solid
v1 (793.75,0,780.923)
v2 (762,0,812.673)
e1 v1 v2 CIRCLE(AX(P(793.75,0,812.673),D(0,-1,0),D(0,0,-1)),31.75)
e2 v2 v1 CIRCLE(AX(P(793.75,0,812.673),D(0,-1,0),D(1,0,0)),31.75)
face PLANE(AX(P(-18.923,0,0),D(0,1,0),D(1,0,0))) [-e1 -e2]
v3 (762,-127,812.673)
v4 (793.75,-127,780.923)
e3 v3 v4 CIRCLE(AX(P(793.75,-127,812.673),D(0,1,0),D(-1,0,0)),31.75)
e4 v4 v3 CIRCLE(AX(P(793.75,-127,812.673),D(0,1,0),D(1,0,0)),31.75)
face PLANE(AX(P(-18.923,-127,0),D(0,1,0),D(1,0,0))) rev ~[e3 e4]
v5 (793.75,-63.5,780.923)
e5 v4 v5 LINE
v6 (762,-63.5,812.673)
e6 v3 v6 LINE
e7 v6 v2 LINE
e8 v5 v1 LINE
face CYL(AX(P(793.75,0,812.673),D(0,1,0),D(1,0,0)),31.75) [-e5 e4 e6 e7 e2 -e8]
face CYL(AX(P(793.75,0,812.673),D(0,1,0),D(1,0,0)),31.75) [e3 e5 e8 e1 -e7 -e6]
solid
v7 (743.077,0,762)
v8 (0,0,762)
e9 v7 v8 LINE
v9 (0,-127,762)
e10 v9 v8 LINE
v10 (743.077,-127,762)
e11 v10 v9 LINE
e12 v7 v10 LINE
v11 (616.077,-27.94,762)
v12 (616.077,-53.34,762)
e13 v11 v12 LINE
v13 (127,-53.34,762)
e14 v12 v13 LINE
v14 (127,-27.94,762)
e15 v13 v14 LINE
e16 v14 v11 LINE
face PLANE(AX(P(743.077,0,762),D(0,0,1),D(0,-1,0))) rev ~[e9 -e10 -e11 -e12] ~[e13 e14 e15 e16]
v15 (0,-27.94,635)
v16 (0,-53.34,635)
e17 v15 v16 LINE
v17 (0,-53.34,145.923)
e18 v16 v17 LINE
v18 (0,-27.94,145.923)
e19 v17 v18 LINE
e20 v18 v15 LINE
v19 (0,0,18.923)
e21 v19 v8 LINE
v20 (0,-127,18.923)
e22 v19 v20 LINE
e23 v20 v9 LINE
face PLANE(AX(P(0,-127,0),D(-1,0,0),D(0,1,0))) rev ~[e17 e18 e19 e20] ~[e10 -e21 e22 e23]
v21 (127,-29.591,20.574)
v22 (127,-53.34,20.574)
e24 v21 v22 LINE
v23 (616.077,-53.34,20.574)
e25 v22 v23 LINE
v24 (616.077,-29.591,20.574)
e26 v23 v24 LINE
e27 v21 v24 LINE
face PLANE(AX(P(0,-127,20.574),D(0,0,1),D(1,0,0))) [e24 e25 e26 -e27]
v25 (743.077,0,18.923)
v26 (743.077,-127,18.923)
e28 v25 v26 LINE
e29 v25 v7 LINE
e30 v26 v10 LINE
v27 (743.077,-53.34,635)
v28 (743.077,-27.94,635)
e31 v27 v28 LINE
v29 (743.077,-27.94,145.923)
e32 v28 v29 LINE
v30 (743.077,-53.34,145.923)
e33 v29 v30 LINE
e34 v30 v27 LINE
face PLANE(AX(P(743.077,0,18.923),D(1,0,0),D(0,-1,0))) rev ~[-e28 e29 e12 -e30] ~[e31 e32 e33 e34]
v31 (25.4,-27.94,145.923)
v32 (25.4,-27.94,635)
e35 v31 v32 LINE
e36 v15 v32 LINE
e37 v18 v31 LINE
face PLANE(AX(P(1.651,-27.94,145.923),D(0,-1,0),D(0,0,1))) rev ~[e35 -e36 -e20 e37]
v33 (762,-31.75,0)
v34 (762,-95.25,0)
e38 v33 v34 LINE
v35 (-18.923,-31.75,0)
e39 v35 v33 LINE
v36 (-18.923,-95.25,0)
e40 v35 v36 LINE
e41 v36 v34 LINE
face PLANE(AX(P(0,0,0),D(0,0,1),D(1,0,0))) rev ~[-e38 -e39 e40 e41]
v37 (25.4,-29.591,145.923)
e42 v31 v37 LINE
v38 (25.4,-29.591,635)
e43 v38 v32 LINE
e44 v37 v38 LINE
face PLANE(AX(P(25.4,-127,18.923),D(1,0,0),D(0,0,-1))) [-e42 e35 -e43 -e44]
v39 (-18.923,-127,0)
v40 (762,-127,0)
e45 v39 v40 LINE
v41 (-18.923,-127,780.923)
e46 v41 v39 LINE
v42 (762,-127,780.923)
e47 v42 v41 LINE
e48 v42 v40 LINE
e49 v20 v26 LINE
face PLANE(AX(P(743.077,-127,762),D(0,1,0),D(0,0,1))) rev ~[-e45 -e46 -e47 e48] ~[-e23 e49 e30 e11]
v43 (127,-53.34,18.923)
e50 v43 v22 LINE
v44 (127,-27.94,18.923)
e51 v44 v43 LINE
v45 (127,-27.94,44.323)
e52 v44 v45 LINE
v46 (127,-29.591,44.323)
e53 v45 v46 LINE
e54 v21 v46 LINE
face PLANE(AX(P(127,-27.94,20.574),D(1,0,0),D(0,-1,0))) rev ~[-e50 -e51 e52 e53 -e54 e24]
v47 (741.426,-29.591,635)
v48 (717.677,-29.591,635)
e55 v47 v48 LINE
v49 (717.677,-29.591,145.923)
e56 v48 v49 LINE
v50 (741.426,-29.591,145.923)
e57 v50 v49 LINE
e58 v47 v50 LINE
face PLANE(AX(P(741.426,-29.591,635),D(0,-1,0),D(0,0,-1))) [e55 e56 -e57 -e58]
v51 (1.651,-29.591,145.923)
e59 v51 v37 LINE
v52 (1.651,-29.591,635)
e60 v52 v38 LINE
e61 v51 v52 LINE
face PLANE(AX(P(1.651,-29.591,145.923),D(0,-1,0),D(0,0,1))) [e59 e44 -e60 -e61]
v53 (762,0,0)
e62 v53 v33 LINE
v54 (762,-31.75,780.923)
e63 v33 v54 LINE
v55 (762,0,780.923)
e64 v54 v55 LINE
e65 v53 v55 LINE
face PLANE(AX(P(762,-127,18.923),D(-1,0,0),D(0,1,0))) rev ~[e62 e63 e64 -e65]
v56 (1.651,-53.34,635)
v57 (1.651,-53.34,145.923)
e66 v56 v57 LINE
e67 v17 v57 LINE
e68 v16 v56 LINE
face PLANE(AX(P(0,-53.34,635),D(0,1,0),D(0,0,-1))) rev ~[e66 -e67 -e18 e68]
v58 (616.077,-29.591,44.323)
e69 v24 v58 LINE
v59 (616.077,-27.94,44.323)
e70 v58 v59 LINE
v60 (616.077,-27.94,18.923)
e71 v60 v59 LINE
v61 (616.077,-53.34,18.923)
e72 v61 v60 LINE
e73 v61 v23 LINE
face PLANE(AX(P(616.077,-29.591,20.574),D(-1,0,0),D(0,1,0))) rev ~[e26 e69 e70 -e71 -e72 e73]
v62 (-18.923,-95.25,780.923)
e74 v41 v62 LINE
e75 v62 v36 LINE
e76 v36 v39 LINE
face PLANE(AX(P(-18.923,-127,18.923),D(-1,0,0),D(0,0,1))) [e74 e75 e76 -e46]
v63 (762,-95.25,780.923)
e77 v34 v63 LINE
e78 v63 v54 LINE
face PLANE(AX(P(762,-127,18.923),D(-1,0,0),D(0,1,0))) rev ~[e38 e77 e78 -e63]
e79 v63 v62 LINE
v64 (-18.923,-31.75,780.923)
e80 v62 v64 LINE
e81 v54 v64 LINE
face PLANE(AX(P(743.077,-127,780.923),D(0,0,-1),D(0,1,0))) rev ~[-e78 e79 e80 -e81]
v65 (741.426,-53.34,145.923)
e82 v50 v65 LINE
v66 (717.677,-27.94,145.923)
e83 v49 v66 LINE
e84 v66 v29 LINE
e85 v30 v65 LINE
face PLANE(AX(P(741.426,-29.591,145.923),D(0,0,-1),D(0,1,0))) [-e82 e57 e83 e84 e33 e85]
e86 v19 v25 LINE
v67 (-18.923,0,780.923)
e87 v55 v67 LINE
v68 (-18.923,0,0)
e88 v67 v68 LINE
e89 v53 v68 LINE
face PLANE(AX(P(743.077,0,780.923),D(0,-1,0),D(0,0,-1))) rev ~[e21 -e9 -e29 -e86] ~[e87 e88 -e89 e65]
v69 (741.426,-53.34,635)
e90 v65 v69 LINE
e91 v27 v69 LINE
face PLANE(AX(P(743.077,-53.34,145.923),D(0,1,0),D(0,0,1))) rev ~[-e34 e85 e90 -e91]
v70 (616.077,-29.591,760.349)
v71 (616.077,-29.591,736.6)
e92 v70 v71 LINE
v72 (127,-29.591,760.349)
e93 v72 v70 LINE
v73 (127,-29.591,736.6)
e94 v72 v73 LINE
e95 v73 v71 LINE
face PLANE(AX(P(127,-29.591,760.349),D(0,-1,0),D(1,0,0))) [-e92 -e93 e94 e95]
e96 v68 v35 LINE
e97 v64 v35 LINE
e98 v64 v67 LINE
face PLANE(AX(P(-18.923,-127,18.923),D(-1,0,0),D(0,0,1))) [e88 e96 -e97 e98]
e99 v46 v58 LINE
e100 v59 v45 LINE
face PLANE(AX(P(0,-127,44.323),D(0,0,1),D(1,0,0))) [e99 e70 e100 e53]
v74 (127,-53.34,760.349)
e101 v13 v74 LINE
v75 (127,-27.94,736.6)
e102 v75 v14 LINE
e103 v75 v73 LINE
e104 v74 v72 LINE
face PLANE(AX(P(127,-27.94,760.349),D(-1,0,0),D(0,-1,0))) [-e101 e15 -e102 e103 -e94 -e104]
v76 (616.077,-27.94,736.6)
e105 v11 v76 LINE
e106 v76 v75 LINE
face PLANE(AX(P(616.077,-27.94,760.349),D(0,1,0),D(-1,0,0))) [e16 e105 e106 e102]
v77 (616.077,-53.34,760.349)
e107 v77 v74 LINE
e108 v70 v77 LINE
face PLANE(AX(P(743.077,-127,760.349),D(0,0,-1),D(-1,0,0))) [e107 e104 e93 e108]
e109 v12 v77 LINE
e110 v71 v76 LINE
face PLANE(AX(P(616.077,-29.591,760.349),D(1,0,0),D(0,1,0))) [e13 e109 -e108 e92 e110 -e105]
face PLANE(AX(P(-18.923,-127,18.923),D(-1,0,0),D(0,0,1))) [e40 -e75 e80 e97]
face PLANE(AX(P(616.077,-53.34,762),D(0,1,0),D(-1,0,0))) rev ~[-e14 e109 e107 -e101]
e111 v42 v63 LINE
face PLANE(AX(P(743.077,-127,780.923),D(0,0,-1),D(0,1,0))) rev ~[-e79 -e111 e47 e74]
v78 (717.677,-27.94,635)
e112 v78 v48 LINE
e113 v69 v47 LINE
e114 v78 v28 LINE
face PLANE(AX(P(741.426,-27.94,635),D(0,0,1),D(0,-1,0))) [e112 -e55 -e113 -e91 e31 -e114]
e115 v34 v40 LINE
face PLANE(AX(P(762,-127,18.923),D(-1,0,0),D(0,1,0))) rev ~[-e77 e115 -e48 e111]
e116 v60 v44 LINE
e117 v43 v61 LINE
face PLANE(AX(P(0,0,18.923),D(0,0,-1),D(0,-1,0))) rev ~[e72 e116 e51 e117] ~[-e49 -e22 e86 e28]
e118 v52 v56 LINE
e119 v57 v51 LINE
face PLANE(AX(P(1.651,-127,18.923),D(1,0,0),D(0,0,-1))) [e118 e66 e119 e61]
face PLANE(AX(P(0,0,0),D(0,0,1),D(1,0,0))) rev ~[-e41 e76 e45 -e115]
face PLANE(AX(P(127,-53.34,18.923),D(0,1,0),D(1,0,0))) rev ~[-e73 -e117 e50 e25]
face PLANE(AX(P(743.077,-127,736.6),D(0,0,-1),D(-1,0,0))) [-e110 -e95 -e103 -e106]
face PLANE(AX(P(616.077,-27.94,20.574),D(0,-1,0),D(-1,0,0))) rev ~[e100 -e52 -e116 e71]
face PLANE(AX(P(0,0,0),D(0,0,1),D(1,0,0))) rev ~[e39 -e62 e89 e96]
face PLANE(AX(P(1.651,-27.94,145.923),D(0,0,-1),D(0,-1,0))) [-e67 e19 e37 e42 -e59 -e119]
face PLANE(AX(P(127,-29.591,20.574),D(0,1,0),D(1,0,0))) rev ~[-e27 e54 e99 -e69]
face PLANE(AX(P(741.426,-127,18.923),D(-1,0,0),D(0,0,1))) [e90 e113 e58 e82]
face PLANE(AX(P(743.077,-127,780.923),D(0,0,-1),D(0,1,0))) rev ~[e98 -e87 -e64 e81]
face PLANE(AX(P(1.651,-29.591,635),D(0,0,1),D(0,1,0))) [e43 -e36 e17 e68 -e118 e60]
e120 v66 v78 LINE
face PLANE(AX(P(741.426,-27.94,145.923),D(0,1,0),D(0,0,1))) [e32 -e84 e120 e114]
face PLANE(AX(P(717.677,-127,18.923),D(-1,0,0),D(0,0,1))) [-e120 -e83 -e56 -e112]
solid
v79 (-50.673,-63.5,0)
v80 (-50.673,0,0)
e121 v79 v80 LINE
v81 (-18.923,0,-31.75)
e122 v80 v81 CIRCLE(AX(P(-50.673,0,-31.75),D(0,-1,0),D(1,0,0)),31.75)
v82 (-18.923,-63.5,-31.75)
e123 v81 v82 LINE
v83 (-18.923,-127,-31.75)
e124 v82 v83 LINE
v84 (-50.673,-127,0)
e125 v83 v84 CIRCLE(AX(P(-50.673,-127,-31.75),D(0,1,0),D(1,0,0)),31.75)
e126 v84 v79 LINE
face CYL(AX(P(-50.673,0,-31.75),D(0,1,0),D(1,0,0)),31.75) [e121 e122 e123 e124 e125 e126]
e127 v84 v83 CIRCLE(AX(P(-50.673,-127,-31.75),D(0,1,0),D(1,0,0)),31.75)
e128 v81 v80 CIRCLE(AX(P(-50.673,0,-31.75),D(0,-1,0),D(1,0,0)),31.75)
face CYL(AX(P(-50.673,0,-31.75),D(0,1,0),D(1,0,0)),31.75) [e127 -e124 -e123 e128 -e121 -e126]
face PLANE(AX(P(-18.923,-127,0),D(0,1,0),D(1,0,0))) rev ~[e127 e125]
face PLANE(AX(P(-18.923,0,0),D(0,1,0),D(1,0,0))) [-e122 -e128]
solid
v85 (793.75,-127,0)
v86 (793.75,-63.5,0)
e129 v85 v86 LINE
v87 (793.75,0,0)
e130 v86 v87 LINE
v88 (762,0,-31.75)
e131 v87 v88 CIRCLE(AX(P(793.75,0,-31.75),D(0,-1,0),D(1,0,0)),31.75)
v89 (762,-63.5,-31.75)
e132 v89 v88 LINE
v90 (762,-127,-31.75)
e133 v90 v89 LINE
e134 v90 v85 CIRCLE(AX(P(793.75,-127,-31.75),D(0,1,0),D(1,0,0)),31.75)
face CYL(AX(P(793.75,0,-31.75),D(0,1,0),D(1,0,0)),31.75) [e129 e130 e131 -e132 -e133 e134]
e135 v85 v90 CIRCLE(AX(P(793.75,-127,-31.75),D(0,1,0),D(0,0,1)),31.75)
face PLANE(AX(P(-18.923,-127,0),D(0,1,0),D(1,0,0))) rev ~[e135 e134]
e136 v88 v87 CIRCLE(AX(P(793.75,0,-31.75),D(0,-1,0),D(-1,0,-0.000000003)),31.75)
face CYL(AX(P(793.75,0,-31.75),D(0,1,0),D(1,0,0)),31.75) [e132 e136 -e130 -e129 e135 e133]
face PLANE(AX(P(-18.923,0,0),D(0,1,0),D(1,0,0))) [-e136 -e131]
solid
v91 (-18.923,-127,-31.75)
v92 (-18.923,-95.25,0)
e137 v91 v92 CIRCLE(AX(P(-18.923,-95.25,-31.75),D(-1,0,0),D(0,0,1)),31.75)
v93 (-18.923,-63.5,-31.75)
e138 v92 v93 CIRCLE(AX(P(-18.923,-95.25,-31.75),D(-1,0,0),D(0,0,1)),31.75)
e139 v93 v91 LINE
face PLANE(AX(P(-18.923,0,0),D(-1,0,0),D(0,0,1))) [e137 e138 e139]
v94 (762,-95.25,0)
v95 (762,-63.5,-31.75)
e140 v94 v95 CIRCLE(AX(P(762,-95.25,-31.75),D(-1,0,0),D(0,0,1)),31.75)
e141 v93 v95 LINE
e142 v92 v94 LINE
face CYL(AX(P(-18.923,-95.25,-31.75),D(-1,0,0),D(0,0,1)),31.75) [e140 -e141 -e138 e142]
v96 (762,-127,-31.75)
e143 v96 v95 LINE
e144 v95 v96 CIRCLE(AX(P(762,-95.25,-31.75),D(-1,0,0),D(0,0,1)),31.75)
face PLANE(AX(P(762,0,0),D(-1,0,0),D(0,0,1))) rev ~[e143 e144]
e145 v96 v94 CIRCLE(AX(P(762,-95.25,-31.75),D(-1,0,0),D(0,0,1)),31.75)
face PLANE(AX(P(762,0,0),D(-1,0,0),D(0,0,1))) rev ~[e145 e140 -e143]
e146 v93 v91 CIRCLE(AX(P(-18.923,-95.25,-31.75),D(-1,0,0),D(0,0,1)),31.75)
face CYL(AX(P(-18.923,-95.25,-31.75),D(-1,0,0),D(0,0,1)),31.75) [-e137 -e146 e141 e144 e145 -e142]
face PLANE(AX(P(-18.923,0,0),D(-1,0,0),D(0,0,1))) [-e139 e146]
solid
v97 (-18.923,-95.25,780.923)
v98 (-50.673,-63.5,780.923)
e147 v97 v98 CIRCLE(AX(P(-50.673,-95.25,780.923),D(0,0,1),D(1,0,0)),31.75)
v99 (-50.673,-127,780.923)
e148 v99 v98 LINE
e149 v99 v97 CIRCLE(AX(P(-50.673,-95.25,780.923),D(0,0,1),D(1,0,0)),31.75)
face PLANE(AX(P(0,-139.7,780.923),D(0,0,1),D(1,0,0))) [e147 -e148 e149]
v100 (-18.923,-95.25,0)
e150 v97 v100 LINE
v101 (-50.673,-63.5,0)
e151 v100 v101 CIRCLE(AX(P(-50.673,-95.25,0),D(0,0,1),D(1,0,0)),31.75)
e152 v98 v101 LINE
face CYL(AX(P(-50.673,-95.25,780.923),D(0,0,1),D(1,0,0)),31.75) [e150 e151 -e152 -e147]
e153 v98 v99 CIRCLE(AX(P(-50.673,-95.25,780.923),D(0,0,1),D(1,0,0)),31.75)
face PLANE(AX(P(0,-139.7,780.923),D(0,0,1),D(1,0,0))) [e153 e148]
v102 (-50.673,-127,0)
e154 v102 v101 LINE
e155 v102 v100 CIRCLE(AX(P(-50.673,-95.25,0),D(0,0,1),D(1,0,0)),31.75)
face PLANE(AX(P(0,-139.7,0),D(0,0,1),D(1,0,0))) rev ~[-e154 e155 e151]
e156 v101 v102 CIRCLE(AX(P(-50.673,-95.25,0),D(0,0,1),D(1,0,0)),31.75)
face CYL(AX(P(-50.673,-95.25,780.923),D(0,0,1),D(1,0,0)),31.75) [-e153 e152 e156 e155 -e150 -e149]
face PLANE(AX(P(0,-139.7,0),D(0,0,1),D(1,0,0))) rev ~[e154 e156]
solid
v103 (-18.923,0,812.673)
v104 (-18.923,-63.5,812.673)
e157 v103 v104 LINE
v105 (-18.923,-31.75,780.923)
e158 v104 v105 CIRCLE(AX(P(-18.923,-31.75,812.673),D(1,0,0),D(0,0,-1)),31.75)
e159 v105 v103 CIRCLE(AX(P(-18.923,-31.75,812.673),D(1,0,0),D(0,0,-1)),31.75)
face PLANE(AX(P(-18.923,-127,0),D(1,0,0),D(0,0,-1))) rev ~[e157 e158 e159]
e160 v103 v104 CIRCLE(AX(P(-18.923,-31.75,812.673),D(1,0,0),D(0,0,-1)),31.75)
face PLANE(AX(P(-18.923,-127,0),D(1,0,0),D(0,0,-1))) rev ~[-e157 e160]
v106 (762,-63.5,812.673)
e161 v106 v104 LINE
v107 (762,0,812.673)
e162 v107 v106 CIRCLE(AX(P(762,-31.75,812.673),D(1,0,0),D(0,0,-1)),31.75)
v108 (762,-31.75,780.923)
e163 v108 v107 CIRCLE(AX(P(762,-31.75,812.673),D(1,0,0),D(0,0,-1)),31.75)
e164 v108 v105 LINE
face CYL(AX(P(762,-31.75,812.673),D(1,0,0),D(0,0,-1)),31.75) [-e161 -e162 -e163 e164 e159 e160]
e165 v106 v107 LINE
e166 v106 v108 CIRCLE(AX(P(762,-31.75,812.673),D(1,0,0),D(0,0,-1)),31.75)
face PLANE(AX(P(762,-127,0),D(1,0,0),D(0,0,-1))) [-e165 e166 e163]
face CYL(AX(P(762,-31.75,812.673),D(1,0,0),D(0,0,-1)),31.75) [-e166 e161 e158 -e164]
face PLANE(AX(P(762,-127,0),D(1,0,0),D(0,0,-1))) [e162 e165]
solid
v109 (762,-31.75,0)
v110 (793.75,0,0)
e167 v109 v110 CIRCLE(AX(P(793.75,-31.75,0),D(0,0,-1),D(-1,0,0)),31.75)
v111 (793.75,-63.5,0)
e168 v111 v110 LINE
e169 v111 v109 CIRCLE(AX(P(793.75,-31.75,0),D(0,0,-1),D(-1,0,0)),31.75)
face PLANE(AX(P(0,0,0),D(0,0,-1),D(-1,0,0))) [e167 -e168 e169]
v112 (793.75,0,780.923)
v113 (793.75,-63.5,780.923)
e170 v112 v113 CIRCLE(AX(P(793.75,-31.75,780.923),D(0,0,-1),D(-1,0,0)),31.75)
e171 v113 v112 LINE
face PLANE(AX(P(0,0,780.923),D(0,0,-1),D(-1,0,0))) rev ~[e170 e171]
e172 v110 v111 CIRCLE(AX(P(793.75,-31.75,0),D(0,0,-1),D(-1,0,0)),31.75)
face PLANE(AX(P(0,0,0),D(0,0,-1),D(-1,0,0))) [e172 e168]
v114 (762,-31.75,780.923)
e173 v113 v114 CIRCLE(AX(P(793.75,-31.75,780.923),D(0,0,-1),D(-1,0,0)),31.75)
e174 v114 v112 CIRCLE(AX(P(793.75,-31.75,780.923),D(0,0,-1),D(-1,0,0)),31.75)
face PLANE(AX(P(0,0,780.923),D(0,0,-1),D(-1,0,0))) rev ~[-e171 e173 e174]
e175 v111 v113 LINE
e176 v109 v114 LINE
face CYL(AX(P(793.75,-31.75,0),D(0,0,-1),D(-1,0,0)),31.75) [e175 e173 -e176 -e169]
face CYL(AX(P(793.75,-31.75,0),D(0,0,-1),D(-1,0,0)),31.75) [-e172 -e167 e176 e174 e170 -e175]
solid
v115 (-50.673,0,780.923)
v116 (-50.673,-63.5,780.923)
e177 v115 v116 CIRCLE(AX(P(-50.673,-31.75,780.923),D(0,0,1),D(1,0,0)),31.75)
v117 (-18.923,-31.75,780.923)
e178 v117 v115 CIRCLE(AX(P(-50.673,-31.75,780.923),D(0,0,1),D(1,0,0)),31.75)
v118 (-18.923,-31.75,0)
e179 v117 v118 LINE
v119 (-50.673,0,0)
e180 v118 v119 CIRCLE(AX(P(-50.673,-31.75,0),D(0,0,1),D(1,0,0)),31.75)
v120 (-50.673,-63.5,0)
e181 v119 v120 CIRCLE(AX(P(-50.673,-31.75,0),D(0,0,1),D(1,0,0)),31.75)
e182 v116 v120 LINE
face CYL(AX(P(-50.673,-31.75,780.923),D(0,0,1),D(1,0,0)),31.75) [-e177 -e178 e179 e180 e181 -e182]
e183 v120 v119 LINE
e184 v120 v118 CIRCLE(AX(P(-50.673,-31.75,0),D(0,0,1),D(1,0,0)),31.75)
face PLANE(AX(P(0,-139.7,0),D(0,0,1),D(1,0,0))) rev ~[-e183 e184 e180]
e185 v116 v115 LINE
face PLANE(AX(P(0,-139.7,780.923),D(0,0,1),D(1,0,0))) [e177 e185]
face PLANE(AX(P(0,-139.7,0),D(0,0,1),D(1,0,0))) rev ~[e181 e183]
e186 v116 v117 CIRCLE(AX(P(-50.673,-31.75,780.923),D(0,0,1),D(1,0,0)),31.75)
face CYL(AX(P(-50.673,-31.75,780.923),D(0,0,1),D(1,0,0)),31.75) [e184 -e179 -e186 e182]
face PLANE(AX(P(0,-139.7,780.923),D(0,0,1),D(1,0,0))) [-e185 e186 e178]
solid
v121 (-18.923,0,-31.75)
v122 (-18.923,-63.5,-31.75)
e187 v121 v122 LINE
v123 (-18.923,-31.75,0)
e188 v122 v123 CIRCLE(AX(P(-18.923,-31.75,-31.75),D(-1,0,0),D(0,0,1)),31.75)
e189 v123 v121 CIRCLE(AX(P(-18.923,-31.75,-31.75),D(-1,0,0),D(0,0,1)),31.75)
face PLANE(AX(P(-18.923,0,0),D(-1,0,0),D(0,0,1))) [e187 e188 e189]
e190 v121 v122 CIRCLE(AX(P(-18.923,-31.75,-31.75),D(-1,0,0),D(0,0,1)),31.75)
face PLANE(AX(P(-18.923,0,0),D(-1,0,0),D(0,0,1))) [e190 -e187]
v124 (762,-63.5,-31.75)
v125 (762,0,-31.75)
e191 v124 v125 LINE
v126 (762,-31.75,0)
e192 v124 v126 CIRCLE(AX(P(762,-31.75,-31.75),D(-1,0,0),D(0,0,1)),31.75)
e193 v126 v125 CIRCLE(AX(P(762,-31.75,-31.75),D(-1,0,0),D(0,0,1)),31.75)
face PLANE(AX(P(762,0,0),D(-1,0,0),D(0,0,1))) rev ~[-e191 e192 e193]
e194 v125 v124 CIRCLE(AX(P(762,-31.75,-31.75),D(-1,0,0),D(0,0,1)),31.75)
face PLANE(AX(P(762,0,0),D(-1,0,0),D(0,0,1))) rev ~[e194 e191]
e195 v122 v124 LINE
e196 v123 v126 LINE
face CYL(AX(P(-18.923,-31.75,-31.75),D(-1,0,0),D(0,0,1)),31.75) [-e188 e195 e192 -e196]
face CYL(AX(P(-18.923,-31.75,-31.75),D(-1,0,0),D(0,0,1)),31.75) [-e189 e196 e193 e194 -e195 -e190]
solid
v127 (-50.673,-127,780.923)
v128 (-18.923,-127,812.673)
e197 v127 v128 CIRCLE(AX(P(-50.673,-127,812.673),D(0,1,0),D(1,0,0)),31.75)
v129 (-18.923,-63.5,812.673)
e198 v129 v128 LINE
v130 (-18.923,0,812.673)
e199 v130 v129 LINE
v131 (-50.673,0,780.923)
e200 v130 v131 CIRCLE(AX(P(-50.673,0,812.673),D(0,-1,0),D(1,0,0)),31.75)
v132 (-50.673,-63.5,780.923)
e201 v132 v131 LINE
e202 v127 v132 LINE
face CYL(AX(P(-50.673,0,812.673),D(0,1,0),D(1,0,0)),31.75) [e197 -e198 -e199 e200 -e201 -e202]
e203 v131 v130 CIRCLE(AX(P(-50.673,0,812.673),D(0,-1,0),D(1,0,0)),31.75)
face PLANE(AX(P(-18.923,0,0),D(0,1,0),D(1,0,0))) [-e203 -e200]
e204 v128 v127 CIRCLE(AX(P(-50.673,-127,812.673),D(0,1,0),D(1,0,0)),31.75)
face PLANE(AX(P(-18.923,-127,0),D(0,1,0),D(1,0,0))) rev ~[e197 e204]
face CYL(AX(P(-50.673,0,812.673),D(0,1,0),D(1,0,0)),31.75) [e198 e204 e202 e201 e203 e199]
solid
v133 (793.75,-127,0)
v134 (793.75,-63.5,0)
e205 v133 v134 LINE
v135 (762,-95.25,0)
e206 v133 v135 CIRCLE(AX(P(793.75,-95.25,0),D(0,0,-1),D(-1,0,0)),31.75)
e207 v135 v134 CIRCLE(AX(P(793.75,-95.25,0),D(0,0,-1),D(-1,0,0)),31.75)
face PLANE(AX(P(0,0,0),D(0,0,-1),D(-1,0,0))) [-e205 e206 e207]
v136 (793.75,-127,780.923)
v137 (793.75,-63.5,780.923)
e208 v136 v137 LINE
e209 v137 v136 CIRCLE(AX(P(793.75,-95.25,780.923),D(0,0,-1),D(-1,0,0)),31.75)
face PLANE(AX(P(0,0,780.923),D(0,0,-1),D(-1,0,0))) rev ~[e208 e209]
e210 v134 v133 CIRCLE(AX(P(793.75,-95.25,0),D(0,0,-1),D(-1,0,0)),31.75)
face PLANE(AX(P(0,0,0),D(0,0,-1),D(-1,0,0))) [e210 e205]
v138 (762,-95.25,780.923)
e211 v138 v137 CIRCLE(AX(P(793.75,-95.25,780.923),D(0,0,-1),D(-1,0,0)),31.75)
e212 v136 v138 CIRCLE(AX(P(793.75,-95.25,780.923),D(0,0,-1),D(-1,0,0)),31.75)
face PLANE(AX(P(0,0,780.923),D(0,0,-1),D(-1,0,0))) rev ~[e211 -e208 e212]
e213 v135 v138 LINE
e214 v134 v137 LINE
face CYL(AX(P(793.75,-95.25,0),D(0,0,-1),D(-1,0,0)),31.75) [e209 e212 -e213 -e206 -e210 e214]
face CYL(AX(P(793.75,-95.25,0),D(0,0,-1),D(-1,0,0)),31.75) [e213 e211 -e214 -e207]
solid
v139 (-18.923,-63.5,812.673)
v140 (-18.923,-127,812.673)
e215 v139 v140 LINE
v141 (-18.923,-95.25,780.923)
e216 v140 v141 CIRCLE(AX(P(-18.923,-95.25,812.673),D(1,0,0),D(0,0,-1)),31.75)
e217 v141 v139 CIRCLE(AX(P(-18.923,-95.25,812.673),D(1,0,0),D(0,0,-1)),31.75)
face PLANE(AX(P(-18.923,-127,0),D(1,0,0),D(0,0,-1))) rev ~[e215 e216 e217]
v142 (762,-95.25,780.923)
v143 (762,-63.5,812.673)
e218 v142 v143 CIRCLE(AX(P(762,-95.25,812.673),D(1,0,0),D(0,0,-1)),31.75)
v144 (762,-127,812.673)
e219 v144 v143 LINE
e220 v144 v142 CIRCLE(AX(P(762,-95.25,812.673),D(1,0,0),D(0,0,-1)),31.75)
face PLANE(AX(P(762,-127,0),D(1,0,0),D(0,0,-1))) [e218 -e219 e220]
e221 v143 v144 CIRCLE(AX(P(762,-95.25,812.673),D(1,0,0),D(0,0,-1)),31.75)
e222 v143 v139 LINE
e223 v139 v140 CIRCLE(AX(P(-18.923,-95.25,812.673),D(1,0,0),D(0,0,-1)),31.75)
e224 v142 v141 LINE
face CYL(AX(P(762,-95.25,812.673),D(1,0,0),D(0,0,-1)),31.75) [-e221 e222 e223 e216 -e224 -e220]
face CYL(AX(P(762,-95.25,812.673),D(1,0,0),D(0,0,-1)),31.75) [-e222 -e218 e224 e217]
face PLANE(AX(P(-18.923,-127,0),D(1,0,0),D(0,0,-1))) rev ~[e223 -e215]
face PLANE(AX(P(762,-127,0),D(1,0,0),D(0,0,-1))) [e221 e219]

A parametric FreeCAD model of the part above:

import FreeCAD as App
import Part
import Sketcher
from FreeCAD import Vector
Q = App.Units.Quantity

doc = App.newDocument("Part")
body = doc.addObject("PartDesign::Body", "Body")
body.AllowCompound = True

sketch1 = body.newObject("Sketcher::SketchObject", "Sketch")
sketch1.AttachmentSupport = (doc.getObject("XY_Plane"), [""])
sketch1.MapMode = "FlatFace"
sketch1.addGeometry(Part.LineSegment(Vector(0, -127, 0), Vector(0, 0, 0)), False)
sketch1.addGeometry(Part.LineSegment(Vector(0, 0, 0), Vector(-18.923, 0, 0)), False)
sketch1.addGeometry(Part.LineSegment(Vector(-18.923, 0, 0), Vector(-18.923, -127, 0)), False)
sketch1.addGeometry(Part.LineSegment(Vector(-18.923, -127, 0), Vector(0, -127, 0)), False)
sketch1.addConstraint(Sketcher.Constraint("Coincident", 0, 2, 1, 1))
sketch1.addConstraint(Sketcher.Constraint("Coincident", 1, 2, 2, 1))
sketch1.addConstraint(Sketcher.Constraint("Coincident", 2, 2, 3, 1))
sketch1.addConstraint(Sketcher.Constraint("Coincident", 3, 2, 0, 1))
sketch1.addConstraint(Sketcher.Constraint("Vertical", 0))
sketch1.addConstraint(Sketcher.Constraint("Horizontal", 1))
sketch1.addConstraint(Sketcher.Constraint("Vertical", 2))
sketch1.addConstraint(Sketcher.Constraint("Horizontal", 3))
sketch1.addConstraint(Sketcher.Constraint("Coincident", 0, 2, -1, 1))
sketch1.addConstraint(Sketcher.Constraint("DistanceY", 0, 1, 0, 2, Q("5 in")))
sketch1.addConstraint(Sketcher.Constraint("DistanceX", 1, 2, 1, 1, Q("0.745 in")))
pad1 = body.newObject("PartDesign::Pad", "Pad")
pad1.Profile = sketch1
pad1.Length = Q("30 in")

sketch2 = body.newObject("Sketcher::SketchObject", "Sketch001")
sketch2.AttachmentSupport = (doc.getObject("YZ_Plane"), [""])
sketch2.MapMode = "FlatFace"
sketch2.addGeometry(Part.LineSegment(Vector(-127, 0, 0), Vector(0, 0, 0)), False)
sketch2.addGeometry(Part.LineSegment(Vector(0, 0, 0), Vector(0, 18.923, 0)), False)
sketch2.addGeometry(Part.LineSegment(Vector(0, 18.923, 0), Vector(-127, 18.923, 0)), False)
sketch2.addGeometry(Part.LineSegment(Vector(-127, 18.923, 0), Vector(-127, 0, 0)), False)
sketch2.addConstraint(Sketcher.Constraint("Coincident", 0, 2, 1, 1))
sketch2.addConstraint(Sketcher.Constraint("Coincident", 1, 2, 2, 1))
sketch2.addConstraint(Sketcher.Constraint("Coincident", 2, 2, 3, 1))
sketch2.addConstraint(Sketcher.Constraint("Coincident", 3, 2, 0, 1))
sketch2.addConstraint(Sketcher.Constraint("Horizontal", 0))
sketch2.addConstraint(Sketcher.Constraint("Vertical", 1))
sketch2.addConstraint(Sketcher.Constraint("Horizontal", 2))
sketch2.addConstraint(Sketcher.Constraint("Vertical", 3))
sketch2.addConstraint(Sketcher.Constraint("Coincident", 0, 2, -1, 1))
sketch2.addConstraint(Sketcher.Constraint("DistanceX", 0, 1, 0, 2, Q("5 in")))
sketch2.addConstraint(Sketcher.Constraint("DistanceY", 1, 1, 1, 2, Q("0.745 in")))
pad2 = body.newObject("PartDesign::Pad", "Pad001")
pad2.Profile = sketch2
pad2.Length = Q("30 in")

sketch3 = body.newObject("Sketcher::SketchObject", "Sketch002")
sketch3.AttachmentSupport = (doc.getObject("XY_Plane"), [""])
sketch3.MapMode = "FlatFace"
sketch3.AttachmentOffset = App.Placement(Vector(0, 0, 0.745 * 25.4), App.Rotation())
sketch3.addGeometry(Part.LineSegment(Vector(762, -127, 0), Vector(762, 0, 0)), False)
sketch3.addGeometry(Part.LineSegment(Vector(762, 0, 0), Vector(743.077, 0, 0)), False)
sketch3.addGeometry(Part.LineSegment(Vector(743.077, 0, 0), Vector(743.077, -127, 0)), False)
sketch3.addGeometry(Part.LineSegment(Vector(743.077, -127, 0), Vector(762, -127, 0)), False)
sketch3.addConstraint(Sketcher.Constraint("Coincident", 0, 2, 1, 1))
sketch3.addConstraint(Sketcher.Constraint("Coincident", 1, 2, 2, 1))
sketch3.addConstraint(Sketcher.Constraint("Coincident", 2, 2, 3, 1))
sketch3.addConstraint(Sketcher.Constraint("Coincident", 3, 2, 0, 1))
sketch3.addConstraint(Sketcher.Constraint("Vertical", 0))
sketch3.addConstraint(Sketcher.Constraint("Horizontal", 1))
sketch3.addConstraint(Sketcher.Constraint("Vertical", 2))
sketch3.addConstraint(Sketcher.Constraint("Horizontal", 3))
sketch3.addConstraint(Sketcher.Constraint("PointOnObject", 0, 2, -1))
sketch3.addConstraint(Sketcher.Constraint("DistanceX", 1, 2, 1, 1, Q("0.745 in")))
sketch3.addConstraint(Sketcher.Constraint("DistanceY", 0, 1, 0, 2, Q("5 in")))
sketch3.addConstraint(Sketcher.Constraint("DistanceX", -1, 1, 0, 2, Q("30 in")))
pad3 = body.newObject("PartDesign::Pad", "Pad002")
pad3.Profile = sketch3
pad3.Length = Q("30 in")

sketch4 = body.newObject("Sketcher::SketchObject", "Sketch003")
sketch4.AttachmentSupport = (doc.getObject("YZ_Plane"), [""])
sketch4.MapMode = "FlatFace"
sketch4.AttachmentOffset = App.Placement(Vector(0, 0, 29.255 * 25.4), App.Rotation())
sketch4.addGeometry(Part.LineSegment(Vector(-127, 762, 0), Vector(-127, 780.923, 0)), False)
sketch4.addGeometry(Part.LineSegment(Vector(-127, 780.923, 0), Vector(0, 780.923, 0)), False)
sketch4.addGeometry(Part.LineSegment(Vector(0, 780.923, 0), Vector(0, 762, 0)), False)
sketch4.addGeometry(Part.LineSegment(Vector(0, 762, 0), Vector(-127, 762, 0)), False)
sketch4.addConstraint(Sketcher.Constraint("Coincident", 0, 2, 1, 1))
sketch4.addConstraint(Sketcher.Constraint("Coincident", 1, 2, 2, 1))
sketch4.addConstraint(Sketcher.Constraint("Coincident", 2, 2, 3, 1))
sketch4.addConstraint(Sketcher.Constraint("Coincident", 3, 2, 0, 1))
sketch4.addConstraint(Sketcher.Constraint("Vertical", 0))
sketch4.addConstraint(Sketcher.Constraint("Horizontal", 1))
sketch4.addConstraint(Sketcher.Constraint("Vertical", 2))
sketch4.addConstraint(Sketcher.Constraint("Horizontal", 3))
sketch4.addConstraint(Sketcher.Constraint("PointOnObject", 1, 2, -2))
sketch4.addConstraint(Sketcher.Constraint("DistanceX", 1, 1, 1, 2, Q("5 in")))
sketch4.addConstraint(Sketcher.Constraint("DistanceY", 0, 1, 0, 2, Q("0.745 in")))
sketch4.addConstraint(Sketcher.Constraint("DistanceY", -1, 1, 2, 2, Q("30 in")))
pad4 = body.newObject("PartDesign::Pad", "Pad003")
pad4.Profile = sketch4
pad4.Length = Q("30 in")
pad4.Reversed = True

sketch5 = body.newObject("Sketcher::SketchObject", "Sketch004")
sketch5.AttachmentSupport = (doc.getObject("XY_Plane"), [""])
sketch5.MapMode = "FlatFace"
sketch5.AttachmentOffset = App.Placement(Vector(0, 0, 30.745 * 25.4), App.Rotation())
sketch5.addGeometry(Part.Circle(Vector(-50.673, -31.75, 0), Vector(0, 0, 1), 31.75), False)
sketch5.addGeometry(Part.Circle(Vector(-50.673, -95.25, 0), Vector(0, 0, 1), 31.75), False)
sketch5.addConstraint(Sketcher.Constraint("Equal", 0, 1))
sketch5.addConstraint(Sketcher.Constraint("Vertical", 0, 3, 1, 3))
sketch5.addConstraint(Sketcher.Constraint("Diameter", 0, Q("2.5 in")))
sketch5.addConstraint(Sketcher.Constraint("DistanceY", 1, 3, 0, 3, Q("2.5 in")))
sketch5.addConstraint(Sketcher.Constraint("DistanceY", 0, 3, -1, 1, Q("1.25 in")))
sketch5.addConstraint(Sketcher.Constraint("DistanceX", 0, 3, -1, 1, Q("1.995 in")))
pad5 = body.newObject("PartDesign::Pad", "Pad004")
pad5.Profile = sketch5
pad5.Length = Q("30.745 in")
pad5.Reversed = True

sketch6 = body.newObject("Sketcher::SketchObject", "Sketch005")
sketch6.AttachmentSupport = (doc.getObject("YZ_Plane"), [""])
sketch6.MapMode = "FlatFace"
sketch6.AttachmentOffset = App.Placement(Vector(0, 0, -0.745 * 25.4), App.Rotation())
sketch6.addGeometry(Part.Circle(Vector(-31.75, -31.75, 0), Vector(0, 0, 1), 31.75), False)
sketch6.addGeometry(Part.Circle(Vector(-95.25, -31.75, 0), Vector(0, 0, 1), 31.75), False)
sketch6.addConstraint(Sketcher.Constraint("Equal", 0, 1))
sketch6.addConstraint(Sketcher.Constraint("Horizontal", 0, 3, 1, 3))
sketch6.addConstraint(Sketcher.Constraint("Diameter", 0, Q("2.5 in")))
sketch6.addConstraint(Sketcher.Constraint("DistanceX", 1, 3, 0, 3, Q("2.5 in")))
sketch6.addConstraint(Sketcher.Constraint("DistanceX", 0, 3, -1, 1, Q("1.25 in")))
sketch6.addConstraint(Sketcher.Constraint("DistanceY", 0, 3, -1, 1, Q("1.25 in")))
pad6 = body.newObject("PartDesign::Pad", "Pad005")
pad6.Profile = sketch6
pad6.Length = Q("30.745 in")

sketch7 = body.newObject("Sketcher::SketchObject", "Sketch006")
sketch7.AttachmentSupport = (doc.getObject("XY_Plane"), [""])
sketch7.MapMode = "FlatFace"
sketch7.addGeometry(Part.Circle(Vector(793.75, -31.75, 0), Vector(0, 0, 1), 31.75), False)
sketch7.addGeometry(Part.Circle(Vector(793.75, -95.25, 0), Vector(0, 0, 1), 31.75), False)
sketch7.addConstraint(Sketcher.Constraint("Equal", 0, 1))
sketch7.addConstraint(Sketcher.Constraint("Vertical", 0, 3, 1, 3))
sketch7.addConstraint(Sketcher.Constraint("Diameter", 0, Q("2.5 in")))
sketch7.addConstraint(Sketcher.Constraint("DistanceY", 1, 3, 0, 3, Q("2.5 in")))
sketch7.addConstraint(Sketcher.Constraint("DistanceY", 0, 3, -1, 1, Q("1.25 in")))
sketch7.addConstraint(Sketcher.Constraint("DistanceX", -1, 1, 0, 3, Q("31.25 in")))
pad7 = body.newObject("PartDesign::Pad", "Pad006")
pad7.Profile = sketch7
pad7.Length = Q("30.745 in")

sketch8 = body.newObject("Sketcher::SketchObject", "Sketch007")
sketch8.AttachmentSupport = (doc.getObject("YZ_Plane"), [""])
sketch8.MapMode = "FlatFace"
sketch8.AttachmentOffset = App.Placement(Vector(0, 0, 30 * 25.4), App.Rotation())
sketch8.addGeometry(Part.Circle(Vector(-31.75, 812.673, 0), Vector(0, 0, 1), 31.75), False)
sketch8.addGeometry(Part.Circle(Vector(-95.25, 812.673, 0), Vector(0, 0, 1), 31.75), False)
sketch8.addConstraint(Sketcher.Constraint("Equal", 0, 1))
sketch8.addConstraint(Sketcher.Constraint("Horizontal", 0, 3, 1, 3))
sketch8.addConstraint(Sketcher.Constraint("Diameter", 0, Q("2.5 in")))
sketch8.addConstraint(Sketcher.Constraint("DistanceX", 1, 3, 0, 3, Q("2.5 in")))
sketch8.addConstraint(Sketcher.Constraint("DistanceX", 0, 3, -1, 1, Q("1.25 in")))
sketch8.addConstraint(Sketcher.Constraint("DistanceY", -1, 1, 0, 3, Q("31.995 in")))
pad8 = body.newObject("PartDesign::Pad", "Pad007")
pad8.Profile = sketch8
pad8.Length = Q("30.745 in")
pad8.Reversed = True

sketch9 = body.newObject("Sketcher::SketchObject", "Sketch008")
sketch9.AttachmentSupport = (doc.getObject("XZ_Plane"), [""])
sketch9.MapMode = "FlatFace"
sketch9.addGeometry(Part.Circle(Vector(793.75, -31.75, 0), Vector(0, 0, 1), 31.75), False)
sketch9.addGeometry(Part.Circle(Vector(-50.673, -31.75, 0), Vector(0, 0, 1), 31.75), False)
sketch9.addGeometry(Part.Circle(Vector(-50.673, 812.673, 0), Vector(0, 0, 1), 31.75), False)
sketch9.addGeometry(Part.Circle(Vector(793.75, 812.673, 0), Vector(0, 0, 1), 31.75), False)
sketch9.addConstraint(Sketcher.Constraint("Equal", 0, 1))
sketch9.addConstraint(Sketcher.Constraint("Equal", 1, 2))
sketch9.addConstraint(Sketcher.Constraint("Equal", 2, 3))
sketch9.addConstraint(Sketcher.Constraint("Horizontal", 0, 3, 1, 3))
sketch9.addConstraint(Sketcher.Constraint("Horizontal", 2, 3, 3, 3))
sketch9.addConstraint(Sketcher.Constraint("Vertical", 1, 3, 2, 3))
sketch9.addConstraint(Sketcher.Constraint("Vertical", 0, 3, 3, 3))
sketch9.addConstraint(Sketcher.Constraint("Diameter", 0, Q("2.5 in")))
sketch9.addConstraint(Sketcher.Constraint("DistanceY", 0, 3, -1, 1, Q("1.25 in")))
sketch9.addConstraint(Sketcher.Constraint("DistanceX", -1, 1, 0, 3, Q("31.25 in")))
sketch9.addConstraint(Sketcher.Constraint("DistanceX", 1, 3, -1, 1, Q("1.995 in")))
sketch9.addConstraint(Sketcher.Constraint("DistanceY", -1, 1, 2, 3, Q("31.995 in")))
pad9 = body.newObject("PartDesign::Pad", "Pad008")
pad9.Profile = sketch9
pad9.Length = Q("5 in")

sketch10 = body.newObject("Sketcher::SketchObject", "Sketch009")
sketch10.AttachmentSupport = (doc.getObject("YZ_Plane"), [""])
sketch10.MapMode = "FlatFace"
sketch10.addGeometry(Part.LineSegment(Vector(-27.94, 635, 0), Vector(-53.34, 635, 0)), False)
sketch10.addGeometry(Part.LineSegment(Vector(-53.34, 635, 0), Vector(-53.34, 145.923, 0)), False)
sketch10.addGeometry(Part.LineSegment(Vector(-53.34, 145.923, 0), Vector(-27.94, 145.923, 0)), False)
sketch10.addGeometry(Part.LineSegment(Vector(-27.94, 145.923, 0), Vector(-27.94, 635, 0)), False)
sketch10.addConstraint(Sketcher.Constraint("Coincident", 0, 2, 1, 1))
sketch10.addConstraint(Sketcher.Constraint("Coincident", 1, 2, 2, 1))
sketch10.addConstraint(Sketcher.Constraint("Coincident", 2, 2, 3, 1))
sketch10.addConstraint(Sketcher.Constraint("Coincident", 3, 2, 0, 1))
sketch10.addConstraint(Sketcher.Constraint("Horizontal", 0))
sketch10.addConstraint(Sketcher.Constraint("Vertical", 1))
sketch10.addConstraint(Sketcher.Constraint("Horizontal", 2))
sketch10.addConstraint(Sketcher.Constraint("Vertical", 3))
sketch10.addConstraint(Sketcher.Constraint("DistanceX", 0, 2, 0, 1, Q("1 in")))
sketch10.addConstraint(Sketcher.Constraint("DistanceY", -1, 1, 0, 2, Q("25 in")))
sketch10.addConstraint(Sketcher.Constraint("DistanceX", 0, 2, -1, 1, Q("2.1 in")))
sketch10.addConstraint(Sketcher.Constraint("DistanceY", 1, 2, 1, 1, Q("19.255 in")))
pad10 = body.newObject("PartDesign::Pad", "Pad009")
pad10.Profile = sketch10
pad10.Length = Q("0.065 in")

sketch11 = body.newObject("Sketcher::SketchObject", "Sketch010")
sketch11.AttachmentSupport = (doc.getObject("YZ_Plane"), [""])
sketch11.MapMode = "FlatFace"
sketch11.AttachmentOffset = App.Placement(Vector(0, 0, 0.065 * 25.4), App.Rotation())
sketch11.addGeometry(Part.LineSegment(Vector(-29.591, 145.923, 0), Vector(-27.94, 145.923, 0)), False)
sketch11.addGeometry(Part.LineSegment(Vector(-27.94, 145.923, 0), Vector(-27.94, 635, 0)), False)
sketch11.addGeometry(Part.LineSegment(Vector(-27.94, 635, 0), Vector(-29.591, 635, 0)), False)
sketch11.addGeometry(Part.LineSegment(Vector(-29.591, 635, 0), Vector(-29.591, 145.923, 0)), False)
sketch11.addConstraint(Sketcher.Constraint("Coincident", 0, 2, 1, 1))
sketch11.addConstraint(Sketcher.Constraint("Coincident", 1, 2, 2, 1))
sketch11.addConstraint(Sketcher.Constraint("Coincident", 2, 2, 3, 1))
sketch11.addConstraint(Sketcher.Constraint("Coincident", 3, 2, 0, 1))
sketch11.addConstraint(Sketcher.Constraint("Horizontal", 0))
sketch11.addConstraint(Sketcher.Constraint("Vertical", 1))
sketch11.addConstraint(Sketcher.Constraint("Horizontal", 2))
sketch11.addConstraint(Sketcher.Constraint("Vertical", 3))
sketch11.addConstraint(Sketcher.Constraint("DistanceX", 0, 1, 0, 2, Q("0.065 in")))
sketch11.addConstraint(Sketcher.Constraint("DistanceY", -1, 1, 1, 2, Q("25 in")))
sketch11.addConstraint(Sketcher.Constraint("DistanceX", 0, 2, -1, 1, Q("1.1 in")))
sketch11.addConstraint(Sketcher.Constraint("DistanceY", 1, 1, 1, 2, Q("19.255 in")))
pad11 = body.newObject("PartDesign::Pad", "Pad010")
pad11.Profile = sketch11
pad11.Length = Q("0.935 in")

sketch12 = body.newObject("Sketcher::SketchObject", "Sketch011")
sketch12.AttachmentSupport = (doc.getObject("XY_Plane"), [""])
sketch12.MapMode = "FlatFace"
sketch12.AttachmentOffset = App.Placement(Vector(0, 0, 30 * 25.4), App.Rotation())
sketch12.addGeometry(Part.LineSegment(Vector(616.077, -27.94, 0), Vector(616.077, -53.34, 0)), False)
sketch12.addGeometry(Part.LineSegment(Vector(616.077, -53.34, 0), Vector(127, -53.34, 0)), False)
sketch12.addGeometry(Part.LineSegment(Vector(127, -53.34, 0), Vector(127, -27.94, 0)), False)
sketch12.addGeometry(Part.LineSegment(Vector(127, -27.94, 0), Vector(616.077, -27.94, 0)), False)
sketch12.addConstraint(Sketcher.Constraint("Coincident", 0, 2, 1, 1))
sketch12.addConstraint(Sketcher.Constraint("Coincident", 1, 2, 2, 1))
sketch12.addConstraint(Sketcher.Constraint("Coincident", 2, 2, 3, 1))
sketch12.addConstraint(Sketcher.Constraint("Coincident", 3, 2, 0, 1))
sketch12.addConstraint(Sketcher.Constraint("Vertical", 0))
sketch12.addConstraint(Sketcher.Constraint("Horizontal", 1))
sketch12.addConstraint(Sketcher.Constraint("Vertical", 2))
sketch12.addConstraint(Sketcher.Constraint("Horizontal", 3))
sketch12.addConstraint(Sketcher.Constraint("DistanceY", 0, 2, 0, 1, Q("1 in")))
sketch12.addConstraint(Sketcher.Constraint("DistanceX", -1, 1, 1, 2, Q("5 in")))
sketch12.addConstraint(Sketcher.Constraint("DistanceX", 1, 2, 1, 1, Q("19.255 in")))
sketch12.addConstraint(Sketcher.Constraint("DistanceY", 0, 2, -1, 1, Q("2.1 in")))
pad12 = body.newObject("PartDesign::Pad", "Pad011")
pad12.Profile = sketch12
pad12.Length = Q("0.065 in")
pad12.Reversed = True

sketch13 = body.newObject("Sketcher::SketchObject", "Sketch012")
sketch13.AttachmentSupport = (doc.getObject("YZ_Plane"), [""])
sketch13.MapMode = "FlatFace"
sketch13.AttachmentOffset = App.Placement(Vector(0, 0, 29.255 * 25.4), App.Rotation())
sketch13.addGeometry(Part.LineSegment(Vector(-27.94, 145.923, 0), Vector(-53.34, 145.923, 0)), False)
sketch13.addGeometry(Part.LineSegment(Vector(-53.34, 145.923, 0), Vector(-53.34, 635, 0)), False)
sketch13.addGeometry(Part.LineSegment(Vector(-53.34, 635, 0), Vector(-27.94, 635, 0)), False)
sketch13.addGeometry(Part.LineSegment(Vector(-27.94, 635, 0), Vector(-27.94, 145.923, 0)), False)
sketch13.addConstraint(Sketcher.Constraint("Coincident", 0, 2, 1, 1))
sketch13.addConstraint(Sketcher.Constraint("Coincident", 1, 2, 2, 1))
sketch13.addConstraint(Sketcher.Constraint("Coincident", 2, 2, 3, 1))
sketch13.addConstraint(Sketcher.Constraint("Coincident", 3, 2, 0, 1))
sketch13.addConstraint(Sketcher.Constraint("Horizontal", 0))
sketch13.addConstraint(Sketcher.Constraint("Vertical", 1))
sketch13.addConstraint(Sketcher.Constraint("Horizontal", 2))
sketch13.addConstraint(Sketcher.Constraint("Vertical", 3))
sketch13.addConstraint(Sketcher.Constraint("DistanceX", 0, 2, 0, 1, Q("1 in")))
sketch13.addConstraint(Sketcher.Constraint("DistanceY", 1, 1, 1, 2, Q("19.255 in")))
sketch13.addConstraint(Sketcher.Constraint("DistanceY", -1, 1, 1, 2, Q("25 in")))
sketch13.addConstraint(Sketcher.Constraint("DistanceX", 0, 2, -1, 1, Q("2.1 in")))
pad13 = body.newObject("PartDesign::Pad", "Pad012")
pad13.Profile = sketch13
pad13.Length = Q("0.065 in")
pad13.Reversed = True

sketch14 = body.newObject("Sketcher::SketchObject", "Sketch013")
sketch14.AttachmentSupport = (doc.getObject("XY_Plane"), [""])
sketch14.MapMode = "FlatFace"
sketch14.AttachmentOffset = App.Placement(Vector(0, 0, 0.745 * 25.4), App.Rotation())
sketch14.addGeometry(Part.LineSegment(Vector(127, -27.94, 0), Vector(127, -53.34, 0)), False)
sketch14.addGeometry(Part.LineSegment(Vector(127, -53.34, 0), Vector(616.077, -53.34, 0)), False)
sketch14.addGeometry(Part.LineSegment(Vector(616.077, -53.34, 0), Vector(616.077, -27.94, 0)), False)
sketch14.addGeometry(Part.LineSegment(Vector(616.077, -27.94, 0), Vector(127, -27.94, 0)), False)
sketch14.addConstraint(Sketcher.Constraint("Coincident", 0, 2, 1, 1))
sketch14.addConstraint(Sketcher.Constraint("Coincident", 1, 2, 2, 1))
sketch14.addConstraint(Sketcher.Constraint("Coincident", 2, 2, 3, 1))
sketch14.addConstraint(Sketcher.Constraint("Coincident", 3, 2, 0, 1))
sketch14.addConstraint(Sketcher.Constraint("Vertical", 0))
sketch14.addConstraint(Sketcher.Constraint("Horizontal", 1))
sketch14.addConstraint(Sketcher.Constraint("Vertical", 2))
sketch14.addConstraint(Sketcher.Constraint("Horizontal", 3))
sketch14.addConstraint(Sketcher.Constraint("DistanceY", 0, 2, 0, 1, Q("1 in")))
sketch14.addConstraint(Sketcher.Constraint("DistanceX", -1, 1, 0, 2, Q("5 in")))
sketch14.addConstraint(Sketcher.Constraint("DistanceX", 1, 1, 1, 2, Q("19.255 in")))
sketch14.addConstraint(Sketcher.Constraint("DistanceY", 0, 2, -1, 1, Q("2.1 in")))
pad14 = body.newObject("PartDesign::Pad", "Pad013")
pad14.Profile = sketch14
pad14.Length = Q("0.065 in")

sketch15 = body.newObject("Sketcher::SketchObject", "Sketch014")
sketch15.AttachmentSupport = (doc.getObject("XY_Plane"), [""])
sketch15.MapMode = "FlatFace"
sketch15.AttachmentOffset = App.Placement(Vector(0, 0, 0.81 * 25.4), App.Rotation())
sketch15.addGeometry(Part.LineSegment(Vector(616.077, -29.591, 0), Vector(616.077, -27.94, 0)), False)
sketch15.addGeometry(Part.LineSegment(Vector(616.077, -27.94, 0), Vector(127, -27.94, 0)), False)
sketch15.addGeometry(Part.LineSegment(Vector(127, -27.94, 0), Vector(127, -29.591, 0)), False)
sketch15.addGeometry(Part.LineSegment(Vector(127, -29.591, 0), Vector(616.077, -29.591, 0)), False)
sketch15.addConstraint(Sketcher.Constraint("Coincident", 0, 2, 1, 1))
sketch15.addConstraint(Sketcher.Constraint("Coincident", 1, 2, 2, 1))
sketch15.addConstraint(Sketcher.Constraint("Coincident", 2, 2, 3, 1))
sketch15.addConstraint(Sketcher.Constraint("Coincident", 3, 2, 0, 1))
sketch15.addConstraint(Sketcher.Constraint("Vertical", 0))
sketch15.addConstraint(Sketcher.Constraint("Horizontal", 1))
sketch15.addConstraint(Sketcher.Constraint("Vertical", 2))
sketch15.addConstraint(Sketcher.Constraint("Horizontal", 3))
sketch15.addConstraint(Sketcher.Constraint("DistanceY", 0, 1, 0, 2, Q("0.065 in")))
sketch15.addConstraint(Sketcher.Constraint("DistanceX", -1, 1, 1, 2, Q("5 in")))
sketch15.addConstraint(Sketcher.Constraint("DistanceY", 0, 2, -1, 1, Q("1.1 in")))
sketch15.addConstraint(Sketcher.Constraint("DistanceX", 1, 2, 1, 1, Q("19.255 in")))
pad15 = body.newObject("PartDesign::Pad", "Pad014")
pad15.Profile = sketch15
pad15.Length = Q("0.935 in")

sketch16 = body.newObject("Sketcher::SketchObject", "Sketch015")
sketch16.AttachmentSupport = (doc.getObject("XY_Plane"), [""])
sketch16.MapMode = "FlatFace"
sketch16.AttachmentOffset = App.Placement(Vector(0, 0, 29.935 * 25.4), App.Rotation())
sketch16.addGeometry(Part.LineSegment(Vector(127, -27.94, 0), Vector(616.077, -27.94, 0)), False)
sketch16.addGeometry(Part.LineSegment(Vector(616.077, -27.94, 0), Vector(616.077, -29.591, 0)), False)
sketch16.addGeometry(Part.LineSegment(Vector(616.077, -29.591, 0), Vector(127, -29.591, 0)), False)
sketch16.addGeometry(Part.LineSegment(Vector(127, -29.591, 0), Vector(127, -27.94, 0)), False)
sketch16.addConstraint(Sketcher.Constraint("Coincident", 0, 2, 1, 1))
sketch16.addConstraint(Sketcher.Constraint("Coincident", 1, 2, 2, 1))
sketch16.addConstraint(Sketcher.Constraint("Coincident", 2, 2, 3, 1))
sketch16.addConstraint(Sketcher.Constraint("Coincident", 3, 2, 0, 1))
sketch16.addConstraint(Sketcher.Constraint("Horizontal", 0))
sketch16.addConstraint(Sketcher.Constraint("Vertical", 1))
sketch16.addConstraint(Sketcher.Constraint("Horizontal", 2))
sketch16.addConstraint(Sketcher.Constraint("Vertical", 3))
sketch16.addConstraint(Sketcher.Constraint("DistanceY", 1, 2, 1, 1, Q("0.065 in")))
sketch16.addConstraint(Sketcher.Constraint("DistanceX", -1, 1, 2, 2, Q("5 in")))
sketch16.addConstraint(Sketcher.Constraint("DistanceY", 0, 2, -1, 1, Q("1.1 in")))
sketch16.addConstraint(Sketcher.Constraint("DistanceX", 0, 1, 0, 2, Q("19.255 in")))
pad16 = body.newObject("PartDesign::Pad", "Pad015")
pad16.Profile = sketch16
pad16.Length = Q("0.935 in")
pad16.Reversed = True

sketch17 = body.newObject("Sketcher::SketchObject", "Sketch016")
sketch17.AttachmentSupport = (doc.getObject("YZ_Plane"), [""])
sketch17.MapMode = "FlatFace"
sketch17.AttachmentOffset = App.Placement(Vector(0, 0, 29.19 * 25.4), App.Rotation())
sketch17.addGeometry(Part.LineSegment(Vector(-27.94, 145.923, 0), Vector(-29.591, 145.923, 0)), False)
sketch17.addGeometry(Part.LineSegment(Vector(-29.591, 145.923, 0), Vector(-29.591, 635, 0)), False)
sketch17.addGeometry(Part.LineSegment(Vector(-29.591, 635, 0), Vector(-27.94, 635, 0)), False)
sketch17.addGeometry(Part.LineSegment(Vector(-27.94, 635, 0), Vector(-27.94, 145.923, 0)), False)
sketch17.addConstraint(Sketcher.Constraint("Coincident", 0, 2, 1, 1))
sketch17.addConstraint(Sketcher.Constraint("Coincident", 1, 2, 2, 1))
sketch17.addConstraint(Sketcher.Constraint("Coincident", 2, 2, 3, 1))
sketch17.addConstraint(Sketcher.Constraint("Coincident", 3, 2, 0, 1))
sketch17.addConstraint(Sketcher.Constraint("Horizontal", 0))
sketch17.addConstraint(Sketcher.Constraint("Vertical", 1))
sketch17.addConstraint(Sketcher.Constraint("Horizontal", 2))
sketch17.addConstraint(Sketcher.Constraint("Vertical", 3))
sketch17.addConstraint(Sketcher.Constraint("DistanceX", 0, 2, 0, 1, Q("0.065 in")))
sketch17.addConstraint(Sketcher.Constraint("DistanceY", -1, 1, 1, 2, Q("25 in")))
sketch17.addConstraint(Sketcher.Constraint("DistanceX", 2, 2, -1, 1, Q("1.1 in")))
sketch17.addConstraint(Sketcher.Constraint("DistanceY", 1, 1, 1, 2, Q("19.255 in")))
pad17 = body.newObject("PartDesign::Pad", "Pad016")
pad17.Profile = sketch17
pad17.Length = Q("0.935 in")
pad17.Reversed = True

doc.recompute()
